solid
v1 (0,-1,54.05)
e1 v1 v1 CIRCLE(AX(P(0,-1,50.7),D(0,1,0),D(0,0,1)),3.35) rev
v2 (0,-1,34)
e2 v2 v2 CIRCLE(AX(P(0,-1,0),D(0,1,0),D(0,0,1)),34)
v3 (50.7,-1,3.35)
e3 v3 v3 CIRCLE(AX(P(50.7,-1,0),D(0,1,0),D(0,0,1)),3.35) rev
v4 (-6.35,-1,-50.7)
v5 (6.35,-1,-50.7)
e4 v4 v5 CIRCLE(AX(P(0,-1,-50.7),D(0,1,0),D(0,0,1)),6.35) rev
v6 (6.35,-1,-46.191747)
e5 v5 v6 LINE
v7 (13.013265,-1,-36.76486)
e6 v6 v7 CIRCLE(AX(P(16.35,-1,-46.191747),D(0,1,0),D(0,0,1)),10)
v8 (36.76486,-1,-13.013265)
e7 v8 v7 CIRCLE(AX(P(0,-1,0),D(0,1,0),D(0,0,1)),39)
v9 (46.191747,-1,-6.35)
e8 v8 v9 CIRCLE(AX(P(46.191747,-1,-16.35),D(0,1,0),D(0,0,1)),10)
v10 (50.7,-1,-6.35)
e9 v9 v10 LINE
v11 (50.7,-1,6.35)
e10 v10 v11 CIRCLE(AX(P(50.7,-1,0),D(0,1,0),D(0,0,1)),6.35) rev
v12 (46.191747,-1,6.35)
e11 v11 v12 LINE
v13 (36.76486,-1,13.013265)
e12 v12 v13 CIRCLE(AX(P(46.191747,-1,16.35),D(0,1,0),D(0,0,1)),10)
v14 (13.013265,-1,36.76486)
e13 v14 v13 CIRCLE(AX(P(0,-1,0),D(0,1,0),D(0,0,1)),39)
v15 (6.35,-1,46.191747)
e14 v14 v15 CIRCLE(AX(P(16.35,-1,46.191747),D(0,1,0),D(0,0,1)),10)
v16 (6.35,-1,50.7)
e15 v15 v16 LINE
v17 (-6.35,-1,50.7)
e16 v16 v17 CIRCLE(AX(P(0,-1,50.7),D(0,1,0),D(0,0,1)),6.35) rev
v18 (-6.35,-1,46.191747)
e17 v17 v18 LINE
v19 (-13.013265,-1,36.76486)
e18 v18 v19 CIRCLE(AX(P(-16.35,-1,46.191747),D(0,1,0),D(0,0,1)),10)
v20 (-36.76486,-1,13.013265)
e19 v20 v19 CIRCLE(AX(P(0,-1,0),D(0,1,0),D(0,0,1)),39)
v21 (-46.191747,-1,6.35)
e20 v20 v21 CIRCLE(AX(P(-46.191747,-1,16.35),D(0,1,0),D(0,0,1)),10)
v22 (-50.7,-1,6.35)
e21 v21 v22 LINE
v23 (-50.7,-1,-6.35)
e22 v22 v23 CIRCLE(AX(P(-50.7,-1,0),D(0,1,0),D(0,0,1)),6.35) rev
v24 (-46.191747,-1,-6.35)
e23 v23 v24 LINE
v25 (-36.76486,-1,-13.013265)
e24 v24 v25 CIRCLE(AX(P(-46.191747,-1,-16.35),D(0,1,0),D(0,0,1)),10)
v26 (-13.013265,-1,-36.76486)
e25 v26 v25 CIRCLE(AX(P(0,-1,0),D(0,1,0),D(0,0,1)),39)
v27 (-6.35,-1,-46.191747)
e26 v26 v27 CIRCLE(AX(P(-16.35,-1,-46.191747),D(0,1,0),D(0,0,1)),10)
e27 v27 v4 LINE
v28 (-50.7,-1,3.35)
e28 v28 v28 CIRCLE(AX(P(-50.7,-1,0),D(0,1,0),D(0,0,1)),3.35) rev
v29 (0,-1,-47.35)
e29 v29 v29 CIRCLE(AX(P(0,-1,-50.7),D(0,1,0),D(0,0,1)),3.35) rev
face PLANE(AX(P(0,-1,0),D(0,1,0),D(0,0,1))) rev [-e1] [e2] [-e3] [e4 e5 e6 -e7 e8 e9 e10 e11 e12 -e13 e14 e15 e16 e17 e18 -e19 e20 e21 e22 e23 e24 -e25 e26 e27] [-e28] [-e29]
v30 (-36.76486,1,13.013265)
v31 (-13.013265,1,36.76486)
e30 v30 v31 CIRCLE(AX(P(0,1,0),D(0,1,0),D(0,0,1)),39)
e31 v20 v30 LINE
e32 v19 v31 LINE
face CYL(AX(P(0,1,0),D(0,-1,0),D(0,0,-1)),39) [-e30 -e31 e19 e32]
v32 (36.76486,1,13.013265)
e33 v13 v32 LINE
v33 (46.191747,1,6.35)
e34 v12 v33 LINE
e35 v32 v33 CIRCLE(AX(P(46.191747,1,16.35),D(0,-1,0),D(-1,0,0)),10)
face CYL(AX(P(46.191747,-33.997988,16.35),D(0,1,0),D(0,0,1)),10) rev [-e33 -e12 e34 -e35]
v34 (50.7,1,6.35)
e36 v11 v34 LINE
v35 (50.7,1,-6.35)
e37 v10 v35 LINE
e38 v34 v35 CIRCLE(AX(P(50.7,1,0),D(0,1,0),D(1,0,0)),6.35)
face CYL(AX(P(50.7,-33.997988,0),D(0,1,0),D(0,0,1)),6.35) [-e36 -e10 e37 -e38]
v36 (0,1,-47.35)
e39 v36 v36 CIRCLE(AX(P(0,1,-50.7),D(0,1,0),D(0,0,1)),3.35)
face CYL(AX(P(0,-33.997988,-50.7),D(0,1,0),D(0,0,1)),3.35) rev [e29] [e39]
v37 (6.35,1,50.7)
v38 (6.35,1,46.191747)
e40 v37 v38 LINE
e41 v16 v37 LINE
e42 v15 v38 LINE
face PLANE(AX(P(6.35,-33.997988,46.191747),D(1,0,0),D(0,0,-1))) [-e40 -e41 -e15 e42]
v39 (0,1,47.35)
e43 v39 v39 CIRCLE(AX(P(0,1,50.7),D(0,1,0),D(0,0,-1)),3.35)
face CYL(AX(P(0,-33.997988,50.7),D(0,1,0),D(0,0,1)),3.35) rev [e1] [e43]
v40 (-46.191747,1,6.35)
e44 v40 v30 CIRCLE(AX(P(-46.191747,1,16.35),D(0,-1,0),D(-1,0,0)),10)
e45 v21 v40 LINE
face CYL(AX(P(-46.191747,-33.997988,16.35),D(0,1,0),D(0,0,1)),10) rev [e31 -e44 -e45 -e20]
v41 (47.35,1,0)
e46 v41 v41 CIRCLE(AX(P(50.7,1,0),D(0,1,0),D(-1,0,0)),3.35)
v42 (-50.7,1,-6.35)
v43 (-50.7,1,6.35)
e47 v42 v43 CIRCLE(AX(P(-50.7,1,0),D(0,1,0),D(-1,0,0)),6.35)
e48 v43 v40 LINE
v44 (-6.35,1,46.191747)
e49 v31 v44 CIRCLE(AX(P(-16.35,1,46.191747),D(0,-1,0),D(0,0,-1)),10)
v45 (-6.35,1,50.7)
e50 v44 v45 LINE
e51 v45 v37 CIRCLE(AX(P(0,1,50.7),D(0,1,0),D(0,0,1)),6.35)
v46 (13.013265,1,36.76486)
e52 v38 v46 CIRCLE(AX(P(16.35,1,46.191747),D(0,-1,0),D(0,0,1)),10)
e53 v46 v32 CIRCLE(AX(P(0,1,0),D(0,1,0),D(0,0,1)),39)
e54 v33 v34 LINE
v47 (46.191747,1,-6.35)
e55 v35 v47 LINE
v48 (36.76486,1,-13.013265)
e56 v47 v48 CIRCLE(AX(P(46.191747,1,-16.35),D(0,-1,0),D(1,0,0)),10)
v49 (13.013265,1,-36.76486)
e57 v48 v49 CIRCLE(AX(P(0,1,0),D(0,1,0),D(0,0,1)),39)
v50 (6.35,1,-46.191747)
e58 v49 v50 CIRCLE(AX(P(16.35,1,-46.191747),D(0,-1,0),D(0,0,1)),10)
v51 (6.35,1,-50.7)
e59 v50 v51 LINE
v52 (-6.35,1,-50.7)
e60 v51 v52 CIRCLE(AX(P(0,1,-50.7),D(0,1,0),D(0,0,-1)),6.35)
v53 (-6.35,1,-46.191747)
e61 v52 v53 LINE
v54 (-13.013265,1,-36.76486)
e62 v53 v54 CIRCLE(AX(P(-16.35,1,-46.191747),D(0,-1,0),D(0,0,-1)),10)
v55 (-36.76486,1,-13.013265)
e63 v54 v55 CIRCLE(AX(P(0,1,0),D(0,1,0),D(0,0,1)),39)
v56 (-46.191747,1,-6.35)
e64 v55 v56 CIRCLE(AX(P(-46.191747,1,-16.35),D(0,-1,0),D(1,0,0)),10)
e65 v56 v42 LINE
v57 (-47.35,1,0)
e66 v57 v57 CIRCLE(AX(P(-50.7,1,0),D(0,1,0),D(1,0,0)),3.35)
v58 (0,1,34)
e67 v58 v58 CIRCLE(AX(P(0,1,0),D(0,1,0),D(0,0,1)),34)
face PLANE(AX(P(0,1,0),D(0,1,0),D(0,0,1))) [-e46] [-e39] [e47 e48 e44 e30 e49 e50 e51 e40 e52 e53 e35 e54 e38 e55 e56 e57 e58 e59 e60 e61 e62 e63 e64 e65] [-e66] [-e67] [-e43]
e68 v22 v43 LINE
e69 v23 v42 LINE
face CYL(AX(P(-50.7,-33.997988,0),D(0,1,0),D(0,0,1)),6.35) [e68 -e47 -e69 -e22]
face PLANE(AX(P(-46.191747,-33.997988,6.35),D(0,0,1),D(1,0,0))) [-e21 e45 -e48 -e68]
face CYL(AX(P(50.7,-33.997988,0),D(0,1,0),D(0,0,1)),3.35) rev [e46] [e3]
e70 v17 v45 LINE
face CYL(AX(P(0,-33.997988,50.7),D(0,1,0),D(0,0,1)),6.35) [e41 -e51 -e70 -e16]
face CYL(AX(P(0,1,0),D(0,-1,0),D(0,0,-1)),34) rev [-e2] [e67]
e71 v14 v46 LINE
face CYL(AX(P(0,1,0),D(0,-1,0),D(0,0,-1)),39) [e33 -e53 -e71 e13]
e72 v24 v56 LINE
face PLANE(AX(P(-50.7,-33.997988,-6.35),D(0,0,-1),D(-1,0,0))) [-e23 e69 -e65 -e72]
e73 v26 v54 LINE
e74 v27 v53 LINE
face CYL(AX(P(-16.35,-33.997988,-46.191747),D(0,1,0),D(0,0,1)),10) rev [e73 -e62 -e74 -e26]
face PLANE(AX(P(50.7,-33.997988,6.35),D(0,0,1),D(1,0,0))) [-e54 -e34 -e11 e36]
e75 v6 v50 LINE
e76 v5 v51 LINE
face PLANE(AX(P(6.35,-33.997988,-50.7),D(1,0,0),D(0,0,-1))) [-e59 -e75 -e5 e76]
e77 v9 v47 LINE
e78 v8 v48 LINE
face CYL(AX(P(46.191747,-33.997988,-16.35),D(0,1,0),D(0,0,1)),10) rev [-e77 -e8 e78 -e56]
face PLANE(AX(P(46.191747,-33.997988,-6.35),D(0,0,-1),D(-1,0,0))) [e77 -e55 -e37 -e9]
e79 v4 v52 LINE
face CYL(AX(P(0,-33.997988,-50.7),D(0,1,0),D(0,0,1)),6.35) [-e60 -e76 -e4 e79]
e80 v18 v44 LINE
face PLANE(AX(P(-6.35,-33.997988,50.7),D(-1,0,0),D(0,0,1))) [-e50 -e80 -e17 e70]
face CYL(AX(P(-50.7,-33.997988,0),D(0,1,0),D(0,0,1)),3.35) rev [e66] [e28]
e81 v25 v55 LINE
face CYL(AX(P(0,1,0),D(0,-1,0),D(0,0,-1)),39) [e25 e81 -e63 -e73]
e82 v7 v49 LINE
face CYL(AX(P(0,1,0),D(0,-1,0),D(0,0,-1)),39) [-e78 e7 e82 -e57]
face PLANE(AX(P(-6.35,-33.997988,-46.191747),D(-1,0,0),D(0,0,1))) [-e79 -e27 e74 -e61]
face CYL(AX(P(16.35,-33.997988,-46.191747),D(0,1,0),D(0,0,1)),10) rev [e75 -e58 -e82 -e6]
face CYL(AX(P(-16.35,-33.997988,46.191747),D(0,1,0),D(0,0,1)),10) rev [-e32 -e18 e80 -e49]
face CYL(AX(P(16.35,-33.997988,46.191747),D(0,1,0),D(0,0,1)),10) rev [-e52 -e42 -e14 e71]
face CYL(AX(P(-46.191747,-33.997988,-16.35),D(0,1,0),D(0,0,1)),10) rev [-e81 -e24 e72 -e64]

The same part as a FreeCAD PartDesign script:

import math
import FreeCAD as App
import Part
import Sketcher

V = App.Vector

doc = App.newDocument("Part")
params = doc.addObject("Spreadsheet::Sheet", "Params")
for row, (alias, value) in enumerate([
    ("sketch1_diameter", "78 mm"),
    ("sketch1_diameter2", "68 mm"),
    ("pad1_length", "2 mm"),
    ("sketch2_radius", "10 mm"),
    ("sketch2_radius2", "39 mm"),
    ("sketch2_diameter", "6.7 mm"),
    ("sketch2_radius3", "6.35 mm"),
    ("pad2_length", "2 mm"),
], start=1):
    params.set(f"A{row}", alias)
    params.set(f"B{row}", "=" + value)
    params.setAlias(f"B{row}", alias)

body = doc.addObject("PartDesign::Body", "Body")

# Sketch on XZ plane
sketch1 = body.newObject("Sketcher::SketchObject", "Sketch")
sketch1.AttachmentSupport = (doc.getObject("XZ_Plane"), [""])
sketch1.MapMode = "FlatFace"
sketch1.addGeometry([
    Part.Circle(V(0, 0, 0), V(0, 0, 1), 39),
    Part.Circle(V(0, 0, 0), V(0, 0, 1), 34),
], False)
sketch1.addConstraint([
    Sketcher.Constraint("Coincident", 0, 3, -1, 1),
    Sketcher.Constraint("Coincident", 1, 3, -1, 1),
    Sketcher.Constraint("Diameter", 0, 78.0),
    Sketcher.Constraint("Diameter", 1, 68.0),
])
sketch1.setExpression("Constraints[2]", "Params.sketch1_diameter")
sketch1.setExpression("Constraints[3]", "Params.sketch1_diameter2")
pad1 = body.newObject("PartDesign::Pad", "Pad")
pad1.Profile = sketch1
pad1.setExpression("Length", "Params.pad1_length")
pad1.Midplane = True

# Sketch on XZ plane
sketch2 = body.newObject("Sketcher::SketchObject", "Sketch001")
sketch2.AttachmentSupport = (doc.getObject("XZ_Plane"), [""])
sketch2.MapMode = "FlatFace"
sketch2.AttachmentOffset = App.Placement(V(0, 0, -1), App.Rotation())
sketch2.addGeometry([
    Part.LineSegment(V(-6.3, -50.7, 0), V(-6.3, -46.2, 0)),  # 0
    Part.ArcOfCircle(Part.Circle(V(-16.4, -46.2, 0), V(0, 0, 1), 10), math.radians(0), math.radians(71)),  # 1
    Part.ArcOfCircle(Part.Circle(V(0, 0, 0), V(0, 0, 1), 39), math.radians(-109), math.radians(-71)),  # 2
    Part.ArcOfCircle(Part.Circle(V(16.4, -46.2, 0), V(0, 0, 1), 10), math.radians(109), math.radians(180)),  # 3
    Part.LineSegment(V(6.3, -46.2, 0), V(6.3, -50.7, 0)),  # 4
    Part.ArcOfCircle(Part.Circle(V(0, -50.7, 0), V(0, 0, 1), 6.3), math.radians(180), math.radians(360)),  # 5
    Part.Circle(V(0, -50.7, 0), V(0, 0, 1), 3.4),  # 6
], False)
sketch2.addConstraint([
    Sketcher.Constraint("Tangent", 0, 2, 1, 1),
    Sketcher.Constraint("Tangent", 1, 2, 2, 1),
    Sketcher.Constraint("Tangent", 2, 2, 3, 1),
    Sketcher.Constraint("Tangent", 3, 2, 4, 1),
    Sketcher.Constraint("Tangent", 4, 2, 5, 2),
    Sketcher.Constraint("Tangent", 5, 1, 0, 1),
    Sketcher.Constraint("Vertical", 0),
    Sketcher.Constraint("Vertical", 4),
    Sketcher.Constraint("Coincident", 2, 3, -1, 1),
    Sketcher.Constraint("Coincident", 6, 3, 5, 3),
    Sketcher.Constraint("Equal", 1, 3),
    Sketcher.Constraint("PointOnObject", 5, 3, -2),
    Sketcher.Constraint("Radius", 1, 10.0),
    Sketcher.Constraint("Radius", 2, 39.0),
    Sketcher.Constraint("Diameter", 6, 6.7),
    Sketcher.Constraint("Radius", 5, 6.35),
    Sketcher.Constraint("DistanceY", 5, 3, -1, 1, 50.7),
])
sketch2.setExpression("Constraints[12]", "Params.sketch2_radius")
sketch2.setExpression("Constraints[13]", "Params.sketch2_radius2")
sketch2.setExpression("Constraints[14]", "Params.sketch2_diameter")
sketch2.setExpression("Constraints[15]", "Params.sketch2_radius3")
pad2 = body.newObject("PartDesign::Pad", "Pad001")
pad2.Profile = sketch2
pad2.setExpression("Length", "Params.pad2_length")
doc.recompute()

polarpattern = body.newObject("PartDesign::PolarPattern", "PolarPattern")
polarpattern.Originals = [pad2]
polarpattern.Axis = (doc.getObject("Y_Axis"), [""])
polarpattern.Angle = 360
polarpattern.Occurrences = 4
body.Tip = polarpattern

doc.recompute()
